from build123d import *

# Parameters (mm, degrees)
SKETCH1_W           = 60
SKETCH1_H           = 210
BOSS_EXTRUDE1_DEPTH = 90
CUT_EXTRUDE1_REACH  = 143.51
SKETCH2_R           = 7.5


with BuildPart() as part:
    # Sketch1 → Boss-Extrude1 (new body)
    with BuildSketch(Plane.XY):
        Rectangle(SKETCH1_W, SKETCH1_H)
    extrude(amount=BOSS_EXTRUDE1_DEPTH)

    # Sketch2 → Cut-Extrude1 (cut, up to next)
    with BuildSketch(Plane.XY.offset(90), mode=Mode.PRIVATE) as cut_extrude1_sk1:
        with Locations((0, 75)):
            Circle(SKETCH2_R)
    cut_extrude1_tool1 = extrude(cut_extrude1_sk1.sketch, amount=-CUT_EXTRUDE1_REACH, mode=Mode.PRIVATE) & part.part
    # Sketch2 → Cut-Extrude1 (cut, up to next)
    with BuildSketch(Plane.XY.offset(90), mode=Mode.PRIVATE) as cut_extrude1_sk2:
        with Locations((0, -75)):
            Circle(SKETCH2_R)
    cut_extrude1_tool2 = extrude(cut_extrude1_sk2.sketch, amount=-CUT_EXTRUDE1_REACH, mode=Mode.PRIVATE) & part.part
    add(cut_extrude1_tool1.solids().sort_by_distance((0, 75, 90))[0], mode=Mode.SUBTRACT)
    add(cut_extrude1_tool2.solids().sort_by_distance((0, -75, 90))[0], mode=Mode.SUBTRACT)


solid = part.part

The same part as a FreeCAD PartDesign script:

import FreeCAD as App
import Part
import Sketcher
Q = App.Units.Quantity

doc = App.newDocument("Part")
body = doc.addObject("PartDesign::Body", "Body")

# Sketch on XY plane
sketch1 = body.newObject("Sketcher::SketchObject", "Sketch")
sketch1.AttachmentSupport = (doc.getObject("XY_Plane"), [""])
sketch1.MapMode = "FlatFace"
sketch1.addGeometry(Part.LineSegment(App.Vector(-30, 105, 0), App.Vector(-30, -105, 0)), False)
sketch1.addGeometry(Part.LineSegment(App.Vector(-30, -105, 0), App.Vector(30, -105, 0)), False)
sketch1.addGeometry(Part.LineSegment(App.Vector(30, -105, 0), App.Vector(30, 105, 0)), False)
sketch1.addGeometry(Part.LineSegment(App.Vector(30, 105, 0), App.Vector(-30, 105, 0)), False)
sketch1.addConstraint(Sketcher.Constraint("Coincident", 0, 2, 1, 1))
sketch1.addConstraint(Sketcher.Constraint("Coincident", 1, 2, 2, 1))
sketch1.addConstraint(Sketcher.Constraint("Coincident", 2, 2, 3, 1))
sketch1.addConstraint(Sketcher.Constraint("Coincident", 3, 2, 0, 1))
sketch1.addConstraint(Sketcher.Constraint("Vertical", 0))
sketch1.addConstraint(Sketcher.Constraint("Horizontal", 1))
sketch1.addConstraint(Sketcher.Constraint("Vertical", 2))
sketch1.addConstraint(Sketcher.Constraint("Horizontal", 3))
sketch1.addConstraint(Sketcher.Constraint("Symmetric", 0, 2, 2, 2, -1, 1))
sketch1.addConstraint(Sketcher.Constraint("DistanceX", 1, 1, 1, 2, Q("60 mm")))
sketch1.addConstraint(Sketcher.Constraint("DistanceY", 0, 2, 0, 1, Q("210 mm")))
pad1 = body.newObject("PartDesign::Pad", "Pad")
pad1.Profile = sketch1
pad1.Length = 90

# Sketch on XY plane
sketch2 = body.newObject("Sketcher::SketchObject", "Sketch001")
sketch2.AttachmentSupport = (doc.getObject("XY_Plane"), [""])
sketch2.MapMode = "FlatFace"
sketch2.AttachmentOffset = App.Placement(App.Vector(0, 0, 90), App.Rotation())
sketch2.addGeometry(Part.Circle(App.Vector(0, 75, 0), App.Vector(0, 0, 1), 8), False)
sketch2.addConstraint(Sketcher.Constraint("PointOnObject", 0, 3, -2))
sketch2.addConstraint(Sketcher.Constraint("Diameter", 0, Q("15 mm")))
sketch2.addConstraint(Sketcher.Constraint("DistanceY", -1, 1, 0, 3, Q("75 mm")))
pocket1 = body.newObject("PartDesign::Pocket", "Pocket")
pocket1.Profile = sketch2
pocket1.Type = "UpToFirst"

# Sketch on XY plane
sketch3 = body.newObject("Sketcher::SketchObject", "Sketch002")
sketch3.AttachmentSupport = (doc.getObject("XY_Plane"), [""])
sketch3.MapMode = "FlatFace"
sketch3.AttachmentOffset = App.Placement(App.Vector(0, 0, 90), App.Rotation())
sketch3.addGeometry(Part.Circle(App.Vector(0, -75, 0), App.Vector(0, 0, 1), 8), False)
sketch3.addConstraint(Sketcher.Constraint("PointOnObject", 0, 3, -2))
sketch3.addConstraint(Sketcher.Constraint("Diameter", 0, Q("15 mm")))
sketch3.addConstraint(Sketcher.Constraint("DistanceY", 0, 3, -1, 1, Q("75 mm")))
pocket2 = body.newObject("PartDesign::Pocket", "Pocket001")
pocket2.Profile = sketch3
pocket2.Type = "UpToFirst"

doc.recompute()
